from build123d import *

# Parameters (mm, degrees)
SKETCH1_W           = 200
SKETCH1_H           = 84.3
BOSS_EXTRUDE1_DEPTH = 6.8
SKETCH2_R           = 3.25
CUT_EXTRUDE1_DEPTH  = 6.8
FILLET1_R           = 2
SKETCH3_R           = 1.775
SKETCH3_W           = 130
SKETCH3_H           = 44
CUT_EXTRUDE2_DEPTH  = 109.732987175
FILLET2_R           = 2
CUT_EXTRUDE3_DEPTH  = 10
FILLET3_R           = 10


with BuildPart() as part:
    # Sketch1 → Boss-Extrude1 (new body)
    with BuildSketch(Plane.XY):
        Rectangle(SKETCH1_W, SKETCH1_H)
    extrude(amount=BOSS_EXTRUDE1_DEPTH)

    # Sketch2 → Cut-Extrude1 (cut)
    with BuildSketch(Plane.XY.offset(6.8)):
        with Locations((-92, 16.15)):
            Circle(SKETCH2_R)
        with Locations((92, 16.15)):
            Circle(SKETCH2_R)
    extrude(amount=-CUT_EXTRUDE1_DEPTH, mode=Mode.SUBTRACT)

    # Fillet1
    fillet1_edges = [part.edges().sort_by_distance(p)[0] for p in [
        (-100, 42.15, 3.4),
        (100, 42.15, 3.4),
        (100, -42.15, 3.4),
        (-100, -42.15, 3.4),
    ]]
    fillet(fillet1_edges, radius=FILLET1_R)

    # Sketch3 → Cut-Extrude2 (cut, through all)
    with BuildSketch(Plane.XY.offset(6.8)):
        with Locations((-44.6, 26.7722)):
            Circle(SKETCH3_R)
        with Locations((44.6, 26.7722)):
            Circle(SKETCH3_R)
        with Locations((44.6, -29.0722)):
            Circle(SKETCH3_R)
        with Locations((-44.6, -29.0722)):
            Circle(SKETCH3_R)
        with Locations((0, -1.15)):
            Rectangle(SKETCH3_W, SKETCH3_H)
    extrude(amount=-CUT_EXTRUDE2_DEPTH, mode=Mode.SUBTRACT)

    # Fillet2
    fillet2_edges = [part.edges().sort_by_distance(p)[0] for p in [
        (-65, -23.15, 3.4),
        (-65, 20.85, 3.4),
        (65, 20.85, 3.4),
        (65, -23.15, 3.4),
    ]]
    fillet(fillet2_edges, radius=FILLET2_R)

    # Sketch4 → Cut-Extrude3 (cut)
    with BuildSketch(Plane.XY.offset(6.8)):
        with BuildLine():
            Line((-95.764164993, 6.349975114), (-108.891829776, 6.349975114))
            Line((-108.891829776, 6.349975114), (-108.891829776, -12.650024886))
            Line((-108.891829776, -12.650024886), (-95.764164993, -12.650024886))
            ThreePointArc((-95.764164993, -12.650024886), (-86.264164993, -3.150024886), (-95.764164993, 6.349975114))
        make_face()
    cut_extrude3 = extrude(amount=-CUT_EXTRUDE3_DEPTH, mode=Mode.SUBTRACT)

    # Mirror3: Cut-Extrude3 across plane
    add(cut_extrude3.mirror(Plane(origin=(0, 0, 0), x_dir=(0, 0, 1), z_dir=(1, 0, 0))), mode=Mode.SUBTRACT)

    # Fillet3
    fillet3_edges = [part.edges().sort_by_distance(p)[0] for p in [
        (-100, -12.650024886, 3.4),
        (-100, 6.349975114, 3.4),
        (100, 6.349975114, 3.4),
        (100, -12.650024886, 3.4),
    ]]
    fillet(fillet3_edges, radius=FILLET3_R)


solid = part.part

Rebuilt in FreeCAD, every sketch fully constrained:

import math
import FreeCAD as App
import Part
import Sketcher


def edges_at(feature, points):
    """Names of the edges that pass closest to the given points."""
    edges = feature.Shape.Edges
    near = lambda p: min(range(len(edges)), key=lambda i: edges[i].distToShape(Part.Vertex(*p))[0])
    return sorted({f"Edge{near(p) + 1}" for p in points})


def add_polygon(sketch, points):
    """Adds a closed chain of lines whose ends are joined by coincident constraints."""
    first, n = sketch.GeometryCount, len(points)
    for a, b in zip(points, points[1:] + points[:1]):
        sketch.addGeometry(Part.LineSegment(App.Vector(*a, 0), App.Vector(*b, 0)), False)
    for i in range(n):
        sketch.addConstraint(Sketcher.Constraint("Coincident", first + i, 2, first + (i + 1) % n, 1))

doc = App.newDocument("Part")
params = doc.addObject("Spreadsheet::Sheet", "Params")
for row, (alias, value) in enumerate([
    ("sketch1_width", "200 mm"),
    ("sketch1_height", "84.3 mm"),
    ("pad1_length", "6.8 mm"),
    ("sketch2_diameter", "6.5 mm"),
    ("pocket1_length", "6.8 mm"),
    ("fillet_radius", "2 mm"),
    ("sketch3_diameter", "3.55 mm"),
    ("sketch3_width", "130 mm"),
    ("sketch3_height", "44 mm"),
    ("fillet2_radius", "2 mm"),
    ("sketch4_radius", "9.5 mm"),
    ("pocket3_length", "10 mm"),
    ("fillet3_radius", "10 mm"),
], start=1):
    params.set(f"A{row}", alias)
    params.set(f"B{row}", "=" + value)
    params.setAlias(f"B{row}", alias)

body = doc.addObject("PartDesign::Body", "Body")

# Sketch on XY plane
sketch1 = body.newObject("Sketcher::SketchObject", "Sketch")
sketch1.AttachmentSupport = (doc.getObject("XY_Plane"), [""])
sketch1.MapMode = "FlatFace"
add_polygon(sketch1, [(-100, 42.15), (-100, -42.15), (100, -42.15), (100, 42.15)])  # lines 0-3
sketch1.addConstraint(Sketcher.Constraint("Vertical", 0))
sketch1.addConstraint(Sketcher.Constraint("Horizontal", 1))
sketch1.addConstraint(Sketcher.Constraint("Vertical", 2))
sketch1.addConstraint(Sketcher.Constraint("Horizontal", 3))
sketch1.addConstraint(Sketcher.Constraint("Symmetric", 0, 2, 2, 2, -1, 1))
sketch1.addConstraint(Sketcher.Constraint("DistanceX", 1, 1, 1, 2, 200.0))
sketch1.addConstraint(Sketcher.Constraint("DistanceY", 0, 2, 0, 1, 84.3))
sketch1.setExpression("Constraints[9]", "Params.sketch1_width")
sketch1.setExpression("Constraints[10]", "Params.sketch1_height")
pad1 = body.newObject("PartDesign::Pad", "Pad")
pad1.Profile = sketch1
pad1.setExpression("Length", "Params.pad1_length")

# Sketch on XY plane
sketch2 = body.newObject("Sketcher::SketchObject", "Sketch001")
sketch2.AttachmentSupport = (doc.getObject("XY_Plane"), [""])
sketch2.MapMode = "FlatFace"
sketch2.AttachmentOffset = App.Placement(App.Vector(0, 0, 6.8), App.Rotation())
sketch2.addGeometry(Part.Circle(App.Vector(-92, 16.15, 0), App.Vector(0, 0, 1), 3.25), False)
sketch2.addGeometry(Part.Circle(App.Vector(92, 16.15, 0), App.Vector(0, 0, 1), 3.25), False)
sketch2.addConstraint(Sketcher.Constraint("Equal", 0, 1))
sketch2.addConstraint(Sketcher.Constraint("Symmetric", 0, 3, 1, 3, -2))
sketch2.addConstraint(Sketcher.Constraint("Diameter", 0, 6.5))
sketch2.addConstraint(Sketcher.Constraint("DistanceX", 0, 3, -1, 1, 92.0))
sketch2.addConstraint(Sketcher.Constraint("DistanceY", -1, 1, 0, 3, 16.15))
sketch2.setExpression("Constraints[2]", "Params.sketch2_diameter")
pocket1 = body.newObject("PartDesign::Pocket", "Pocket")
pocket1.Profile = sketch2
pocket1.setExpression("Length", "Params.pocket1_length")
doc.recompute()

fillet = body.newObject("PartDesign::Fillet", "Fillet")
fillet.Base = (pocket1, edges_at(pocket1, [
    (-100, 42.15, 3.4),
    (100, 42.15, 3.4),
    (100, -42.15, 3.4),
    (-100, -42.15, 3.4),
]))
fillet.setExpression("Radius", "Params.fillet_radius")

# Sketch on XY plane
sketch3 = body.newObject("Sketcher::SketchObject", "Sketch002")
sketch3.AttachmentSupport = (doc.getObject("XY_Plane"), [""])
sketch3.MapMode = "FlatFace"
sketch3.AttachmentOffset = App.Placement(App.Vector(0, 0, 6.8), App.Rotation())
sketch3.addGeometry(Part.Circle(App.Vector(-44.6, 26.7722, 0), App.Vector(0, 0, 1), 1.775), False)  # 0
sketch3.addGeometry(Part.Circle(App.Vector(44.6, 26.7722, 0), App.Vector(0, 0, 1), 1.775), False)  # 1
sketch3.addGeometry(Part.Circle(App.Vector(44.6, -29.0722, 0), App.Vector(0, 0, 1), 1.775), False)  # 2
sketch3.addGeometry(Part.Circle(App.Vector(-44.6, -29.0722, 0), App.Vector(0, 0, 1), 1.775), False)  # 3
add_polygon(sketch3, [(-65, 20.85), (-65, -23.15), (65, -23.15), (65, 20.85)])  # lines 4-7
sketch3.addConstraint(Sketcher.Constraint("Vertical", 4))
sketch3.addConstraint(Sketcher.Constraint("Horizontal", 5))
sketch3.addConstraint(Sketcher.Constraint("Vertical", 6))
sketch3.addConstraint(Sketcher.Constraint("Horizontal", 7))
sketch3.addConstraint(Sketcher.Constraint("Equal", 0, 1))
sketch3.addConstraint(Sketcher.Constraint("Equal", 1, 2))
sketch3.addConstraint(Sketcher.Constraint("Equal", 2, 3))
sketch3.addConstraint(Sketcher.Constraint("Symmetric", 0, 3, 1, 3, -2))
sketch3.addConstraint(Sketcher.Constraint("Symmetric", 2, 3, 3, 3, -2))
sketch3.addConstraint(Sketcher.Constraint("Vertical", 1, 3, 2, 3))
sketch3.addConstraint(Sketcher.Constraint("Diameter", 0, 3.55))
sketch3.addConstraint(Sketcher.Constraint("DistanceX", 5, 1, 5, 2, 130.0))
sketch3.addConstraint(Sketcher.Constraint("DistanceY", 4, 2, 4, 1, 44.0))
sketch3.addConstraint(Sketcher.Constraint("DistanceX", 4, 2, -1, 1, 65.0))
sketch3.addConstraint(Sketcher.Constraint("DistanceX", 0, 3, -1, 1, 44.6))
sketch3.addConstraint(Sketcher.Constraint("DistanceY", 4, 2, -1, 1, 23.15))
sketch3.addConstraint(Sketcher.Constraint("DistanceY", -1, 1, 0, 3, 26.7722))
sketch3.addConstraint(Sketcher.Constraint("DistanceY", 2, 3, -1, 1, 29.0722))
sketch3.setExpression("Constraints[14]", "Params.sketch3_diameter")
sketch3.setExpression("Constraints[15]", "Params.sketch3_width")
sketch3.setExpression("Constraints[16]", "Params.sketch3_height")
pocket2 = body.newObject("PartDesign::Pocket", "Pocket001")
pocket2.Profile = sketch3
pocket2.Type = "ThroughAll"
doc.recompute()

fillet2 = body.newObject("PartDesign::Fillet", "Fillet001")
fillet2.Base = (pocket2, edges_at(pocket2, [
    (-65, -23.15, 3.4),
    (-65, 20.85, 3.4),
    (65, 20.85, 3.4),
    (65, -23.15, 3.4),
]))
fillet2.setExpression("Radius", "Params.fillet2_radius")

# Sketch on XY plane
sketch4 = body.newObject("Sketcher::SketchObject", "Sketch003")
sketch4.AttachmentSupport = (doc.getObject("XY_Plane"), [""])
sketch4.MapMode = "FlatFace"
sketch4.AttachmentOffset = App.Placement(App.Vector(0, 0, 6.8), App.Rotation())
sketch4.addGeometry(Part.LineSegment(App.Vector(-95.764165, 6.349975, 0), App.Vector(-108.89183, 6.349975, 0)), False)
sketch4.addGeometry(Part.LineSegment(App.Vector(-108.89183, 6.349975, 0), App.Vector(-108.89183, -12.650025, 0)), False)
sketch4.addGeometry(Part.LineSegment(App.Vector(-108.89183, -12.650025, 0), App.Vector(-95.764165, -12.650025, 0)), False)
sketch4.addGeometry(Part.ArcOfCircle(Part.Circle(App.Vector(-95.764165, -3.150025, 0), App.Vector(0, 0, 1), 9.5), math.radians(-90), math.radians(90)), False)
sketch4.addConstraint(Sketcher.Constraint("Coincident", 0, 2, 1, 1))
sketch4.addConstraint(Sketcher.Constraint("Coincident", 1, 2, 2, 1))
sketch4.addConstraint(Sketcher.Constraint("Tangent", 2, 2, 3, 1))
sketch4.addConstraint(Sketcher.Constraint("Tangent", 3, 2, 0, 1))
sketch4.addConstraint(Sketcher.Constraint("Horizontal", 0))
sketch4.addConstraint(Sketcher.Constraint("Vertical", 1))
sketch4.addConstraint(Sketcher.Constraint("Horizontal", 2))
sketch4.addConstraint(Sketcher.Constraint("Radius", 3, 9.5))
sketch4.addConstraint(Sketcher.Constraint("DistanceX", 0, 2, 0, 1, 13.127665))
sketch4.addConstraint(Sketcher.Constraint("DistanceX", 0, 2, -1, 1, 108.89183))
sketch4.addConstraint(Sketcher.Constraint("DistanceY", 3, 3, -1, 1, 3.150025))
sketch4.setExpression("Constraints[7]", "Params.sketch4_radius")
pocket3 = body.newObject("PartDesign::Pocket", "Pocket002")
pocket3.Profile = sketch4
pocket3.setExpression("Length", "Params.pocket3_length")
doc.recompute()

mirrored = body.newObject("PartDesign::Mirrored", "Mirrored")
mirrored.Originals = [pocket3]
mirrored.MirrorPlane = (doc.getObject("YZ_Plane"), [""])
body.Tip = mirrored
doc.recompute()

fillet3 = body.newObject("PartDesign::Fillet", "Fillet002")
fillet3.Base = (mirrored, edges_at(mirrored, [
    (-100, -12.65, 3.4),
    (-100, 6.35, 3.4),
    (100, 6.35, 3.4),
    (100, -12.65, 3.4),
]))
fillet3.setExpression("Radius", "Params.fillet3_radius")

doc.recompute()
